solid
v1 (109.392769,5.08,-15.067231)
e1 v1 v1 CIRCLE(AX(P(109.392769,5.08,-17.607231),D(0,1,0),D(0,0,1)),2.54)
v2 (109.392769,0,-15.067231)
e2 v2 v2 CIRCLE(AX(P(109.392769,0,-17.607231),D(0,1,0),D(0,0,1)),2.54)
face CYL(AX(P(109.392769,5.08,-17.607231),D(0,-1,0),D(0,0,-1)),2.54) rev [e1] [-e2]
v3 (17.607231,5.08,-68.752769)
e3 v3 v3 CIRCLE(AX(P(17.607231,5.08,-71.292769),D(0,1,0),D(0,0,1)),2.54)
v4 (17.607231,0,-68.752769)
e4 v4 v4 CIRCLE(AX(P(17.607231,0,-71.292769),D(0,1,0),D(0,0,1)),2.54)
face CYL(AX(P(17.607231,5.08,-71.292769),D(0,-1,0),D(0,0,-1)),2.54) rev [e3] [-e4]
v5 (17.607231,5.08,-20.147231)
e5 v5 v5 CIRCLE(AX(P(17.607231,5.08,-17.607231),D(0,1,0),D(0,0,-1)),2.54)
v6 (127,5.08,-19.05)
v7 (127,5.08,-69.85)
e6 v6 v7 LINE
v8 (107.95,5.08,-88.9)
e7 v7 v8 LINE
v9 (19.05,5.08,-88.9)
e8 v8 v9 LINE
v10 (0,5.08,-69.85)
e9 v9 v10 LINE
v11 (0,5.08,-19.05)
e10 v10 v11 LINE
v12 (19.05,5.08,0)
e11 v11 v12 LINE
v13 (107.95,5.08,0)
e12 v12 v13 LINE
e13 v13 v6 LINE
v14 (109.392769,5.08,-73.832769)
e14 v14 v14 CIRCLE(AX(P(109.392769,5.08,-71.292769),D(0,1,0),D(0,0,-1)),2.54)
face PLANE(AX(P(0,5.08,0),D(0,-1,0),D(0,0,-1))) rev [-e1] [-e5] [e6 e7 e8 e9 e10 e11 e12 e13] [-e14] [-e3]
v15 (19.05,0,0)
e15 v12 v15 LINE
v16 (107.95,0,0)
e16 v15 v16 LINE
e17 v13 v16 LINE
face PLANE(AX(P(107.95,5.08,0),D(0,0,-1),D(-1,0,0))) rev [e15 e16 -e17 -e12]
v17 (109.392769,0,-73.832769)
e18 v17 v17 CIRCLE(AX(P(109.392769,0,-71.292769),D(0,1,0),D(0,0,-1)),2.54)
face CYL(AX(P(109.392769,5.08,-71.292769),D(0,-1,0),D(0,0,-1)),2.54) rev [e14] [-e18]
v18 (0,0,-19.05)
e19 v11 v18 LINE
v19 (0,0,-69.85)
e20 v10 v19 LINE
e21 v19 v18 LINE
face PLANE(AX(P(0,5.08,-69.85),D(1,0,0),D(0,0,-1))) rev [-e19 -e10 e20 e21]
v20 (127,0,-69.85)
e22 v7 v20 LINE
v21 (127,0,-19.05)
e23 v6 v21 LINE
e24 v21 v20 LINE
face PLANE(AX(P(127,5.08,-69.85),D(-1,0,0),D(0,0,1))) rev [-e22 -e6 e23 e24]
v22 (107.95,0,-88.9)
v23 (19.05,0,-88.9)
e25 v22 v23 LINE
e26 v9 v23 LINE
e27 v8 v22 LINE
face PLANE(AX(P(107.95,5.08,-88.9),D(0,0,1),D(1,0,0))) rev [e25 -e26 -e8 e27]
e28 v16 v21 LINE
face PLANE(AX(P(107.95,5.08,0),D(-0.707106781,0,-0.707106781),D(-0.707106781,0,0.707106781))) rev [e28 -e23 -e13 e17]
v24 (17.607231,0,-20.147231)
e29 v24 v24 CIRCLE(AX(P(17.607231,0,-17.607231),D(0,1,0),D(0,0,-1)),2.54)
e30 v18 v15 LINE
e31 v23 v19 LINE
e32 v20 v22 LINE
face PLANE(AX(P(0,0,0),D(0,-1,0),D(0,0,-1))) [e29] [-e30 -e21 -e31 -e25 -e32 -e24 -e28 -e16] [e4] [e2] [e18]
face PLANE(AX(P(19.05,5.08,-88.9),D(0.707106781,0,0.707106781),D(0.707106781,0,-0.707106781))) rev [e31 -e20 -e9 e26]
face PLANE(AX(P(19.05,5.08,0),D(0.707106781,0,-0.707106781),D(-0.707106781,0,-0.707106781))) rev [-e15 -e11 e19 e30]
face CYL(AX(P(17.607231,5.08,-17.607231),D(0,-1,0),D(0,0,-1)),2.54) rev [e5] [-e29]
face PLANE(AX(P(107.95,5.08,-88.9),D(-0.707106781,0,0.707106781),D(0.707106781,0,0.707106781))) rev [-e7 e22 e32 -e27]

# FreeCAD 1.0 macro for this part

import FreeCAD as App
import Part
import Sketcher

V = App.Vector
Q = App.Units.Quantity


def add_polygon(sketch, points):
    """Adds a closed chain of lines whose ends are joined by coincident constraints."""
    first, n = sketch.GeometryCount, len(points)
    for a, b in zip(points, points[1:] + points[:1]):
        sketch.addGeometry(Part.LineSegment(App.Vector(*a, 0), App.Vector(*b, 0)), False)
    for i in range(n):
        sketch.addConstraint(Sketcher.Constraint("Coincident", first + i, 2, first + (i + 1) % n, 1))

doc = App.newDocument("Part")
params = doc.addObject("Spreadsheet::Sheet", "Params")
for row, (alias, value) in enumerate([
    ("sketch1_diameter", "0.2 in"),
    ("sketch1_height", "2 in"),
    ("sketch1_width", "3.5 in"),
    ("pad1_length", "0.2 in"),
], start=1):
    params.set(f"A{row}", alias)
    params.set(f"B{row}", "=" + value)
    params.setAlias(f"B{row}", alias)

body = doc.addObject("PartDesign::Body", "Body")

# Sketch on XZ plane
sketch1 = doc.addObject("Sketcher::SketchObject", "Sketch")
body.addObject(sketch1)
sketch1.AttachmentSupport = (doc.XZ_Plane, [""])
sketch1.MapMode = "FlatFace"
add_polygon(sketch1, [(107.95, -88.9), (19.05, -88.9), (0, -69.85), (0, -19.05), (19.05, 0), (107.95, 0), (127, -19.05), (127, -69.85)])  # lines 0-7
sketch1.addGeometry(Part.Circle(V(17.607231, -17.607231, 0), V(0, 0, 1), 2.54), False)  # 8
sketch1.addGeometry(Part.Circle(V(109.392769, -17.607231, 0), V(0, 0, 1), 2.54), False)  # 9
sketch1.addGeometry(Part.Circle(V(17.607231, -71.292769, 0), V(0, 0, 1), 2.54), False)  # 10
sketch1.addGeometry(Part.Circle(V(109.392769, -71.292769, 0), V(0, 0, 1), 2.54), False)  # 11
sketch1.addConstraint(Sketcher.Constraint("Horizontal", 0))
sketch1.addConstraint(Sketcher.Constraint("Vertical", 2))
sketch1.addConstraint(Sketcher.Constraint("Horizontal", 4))
sketch1.addConstraint(Sketcher.Constraint("Vertical", 6))
sketch1.addConstraint(Sketcher.Constraint("Equal", 8, 9))
sketch1.addConstraint(Sketcher.Constraint("Equal", 9, 10))
sketch1.addConstraint(Sketcher.Constraint("Equal", 10, 11))
sketch1.addConstraint(Sketcher.Constraint("PointOnObject", 1, 2, -2))
sketch1.addConstraint(Sketcher.Constraint("PointOnObject", 3, 2, -1))
sketch1.addConstraint(Sketcher.Constraint("Perpendicular", 1, 3))
sketch1.addConstraint(Sketcher.Constraint("Perpendicular", 3, 5))
sketch1.addConstraint(Sketcher.Constraint("Perpendicular", 5, 7))
sketch1.addConstraint(Sketcher.Constraint("Horizontal", 8, 3, 9, 3))
sketch1.addConstraint(Sketcher.Constraint("Horizontal", 10, 3, 11, 3))
sketch1.addConstraint(Sketcher.Constraint("Horizontal", 2, 2, 5, 2))
sketch1.addConstraint(Sketcher.Constraint("Horizontal", 1, 2, 6, 2))
sketch1.addConstraint(Sketcher.Constraint("Vertical", 8, 3, 10, 3))
sketch1.addConstraint(Sketcher.Constraint("Vertical", 9, 3, 11, 3))
sketch1.addConstraint(Sketcher.Constraint("Vertical", 0, 2, 3, 2))
sketch1.addConstraint(Sketcher.Constraint("Vertical", 4, 2, 7, 2))
sketch1.addConstraint(Sketcher.Constraint("Diameter", 8, Q("0.2 in")))
sketch1.addConstraint(Sketcher.Constraint("DistanceY", 2, 1, 2, 2, Q("2 in")))
sketch1.addConstraint(Sketcher.Constraint("DistanceX", 0, 2, 0, 1, Q("3.5 in")))
sketch1.addConstraint(Sketcher.Constraint("DistanceX", -1, 1, 5, 2, Q("5 in")))
sketch1.addConstraint(Sketcher.Constraint("DistanceX", -1, 1, 8, 3, Q("17.607231 mm")))
sketch1.addConstraint(Sketcher.Constraint("DistanceY", 8, 3, -1, 1, Q("17.607231 mm")))
sketch1.addConstraint(Sketcher.Constraint("DistanceX", -1, 1, 9, 3, Q("109.392769 mm")))
sketch1.addConstraint(Sketcher.Constraint("DistanceY", 10, 3, -1, 1, Q("71.292769 mm")))
sketch1.setExpression("Constraints[28]", "Params.sketch1_diameter")
sketch1.setExpression("Constraints[29]", "Params.sketch1_height")
sketch1.setExpression("Constraints[30]", "Params.sketch1_width")
pad1 = doc.addObject("PartDesign::Pad", "Pad")
body.addObject(pad1)
pad1.Profile = sketch1
pad1.setExpression("Length", "Params.pad1_length")
pad1.Reversed = True

doc.recompute()
